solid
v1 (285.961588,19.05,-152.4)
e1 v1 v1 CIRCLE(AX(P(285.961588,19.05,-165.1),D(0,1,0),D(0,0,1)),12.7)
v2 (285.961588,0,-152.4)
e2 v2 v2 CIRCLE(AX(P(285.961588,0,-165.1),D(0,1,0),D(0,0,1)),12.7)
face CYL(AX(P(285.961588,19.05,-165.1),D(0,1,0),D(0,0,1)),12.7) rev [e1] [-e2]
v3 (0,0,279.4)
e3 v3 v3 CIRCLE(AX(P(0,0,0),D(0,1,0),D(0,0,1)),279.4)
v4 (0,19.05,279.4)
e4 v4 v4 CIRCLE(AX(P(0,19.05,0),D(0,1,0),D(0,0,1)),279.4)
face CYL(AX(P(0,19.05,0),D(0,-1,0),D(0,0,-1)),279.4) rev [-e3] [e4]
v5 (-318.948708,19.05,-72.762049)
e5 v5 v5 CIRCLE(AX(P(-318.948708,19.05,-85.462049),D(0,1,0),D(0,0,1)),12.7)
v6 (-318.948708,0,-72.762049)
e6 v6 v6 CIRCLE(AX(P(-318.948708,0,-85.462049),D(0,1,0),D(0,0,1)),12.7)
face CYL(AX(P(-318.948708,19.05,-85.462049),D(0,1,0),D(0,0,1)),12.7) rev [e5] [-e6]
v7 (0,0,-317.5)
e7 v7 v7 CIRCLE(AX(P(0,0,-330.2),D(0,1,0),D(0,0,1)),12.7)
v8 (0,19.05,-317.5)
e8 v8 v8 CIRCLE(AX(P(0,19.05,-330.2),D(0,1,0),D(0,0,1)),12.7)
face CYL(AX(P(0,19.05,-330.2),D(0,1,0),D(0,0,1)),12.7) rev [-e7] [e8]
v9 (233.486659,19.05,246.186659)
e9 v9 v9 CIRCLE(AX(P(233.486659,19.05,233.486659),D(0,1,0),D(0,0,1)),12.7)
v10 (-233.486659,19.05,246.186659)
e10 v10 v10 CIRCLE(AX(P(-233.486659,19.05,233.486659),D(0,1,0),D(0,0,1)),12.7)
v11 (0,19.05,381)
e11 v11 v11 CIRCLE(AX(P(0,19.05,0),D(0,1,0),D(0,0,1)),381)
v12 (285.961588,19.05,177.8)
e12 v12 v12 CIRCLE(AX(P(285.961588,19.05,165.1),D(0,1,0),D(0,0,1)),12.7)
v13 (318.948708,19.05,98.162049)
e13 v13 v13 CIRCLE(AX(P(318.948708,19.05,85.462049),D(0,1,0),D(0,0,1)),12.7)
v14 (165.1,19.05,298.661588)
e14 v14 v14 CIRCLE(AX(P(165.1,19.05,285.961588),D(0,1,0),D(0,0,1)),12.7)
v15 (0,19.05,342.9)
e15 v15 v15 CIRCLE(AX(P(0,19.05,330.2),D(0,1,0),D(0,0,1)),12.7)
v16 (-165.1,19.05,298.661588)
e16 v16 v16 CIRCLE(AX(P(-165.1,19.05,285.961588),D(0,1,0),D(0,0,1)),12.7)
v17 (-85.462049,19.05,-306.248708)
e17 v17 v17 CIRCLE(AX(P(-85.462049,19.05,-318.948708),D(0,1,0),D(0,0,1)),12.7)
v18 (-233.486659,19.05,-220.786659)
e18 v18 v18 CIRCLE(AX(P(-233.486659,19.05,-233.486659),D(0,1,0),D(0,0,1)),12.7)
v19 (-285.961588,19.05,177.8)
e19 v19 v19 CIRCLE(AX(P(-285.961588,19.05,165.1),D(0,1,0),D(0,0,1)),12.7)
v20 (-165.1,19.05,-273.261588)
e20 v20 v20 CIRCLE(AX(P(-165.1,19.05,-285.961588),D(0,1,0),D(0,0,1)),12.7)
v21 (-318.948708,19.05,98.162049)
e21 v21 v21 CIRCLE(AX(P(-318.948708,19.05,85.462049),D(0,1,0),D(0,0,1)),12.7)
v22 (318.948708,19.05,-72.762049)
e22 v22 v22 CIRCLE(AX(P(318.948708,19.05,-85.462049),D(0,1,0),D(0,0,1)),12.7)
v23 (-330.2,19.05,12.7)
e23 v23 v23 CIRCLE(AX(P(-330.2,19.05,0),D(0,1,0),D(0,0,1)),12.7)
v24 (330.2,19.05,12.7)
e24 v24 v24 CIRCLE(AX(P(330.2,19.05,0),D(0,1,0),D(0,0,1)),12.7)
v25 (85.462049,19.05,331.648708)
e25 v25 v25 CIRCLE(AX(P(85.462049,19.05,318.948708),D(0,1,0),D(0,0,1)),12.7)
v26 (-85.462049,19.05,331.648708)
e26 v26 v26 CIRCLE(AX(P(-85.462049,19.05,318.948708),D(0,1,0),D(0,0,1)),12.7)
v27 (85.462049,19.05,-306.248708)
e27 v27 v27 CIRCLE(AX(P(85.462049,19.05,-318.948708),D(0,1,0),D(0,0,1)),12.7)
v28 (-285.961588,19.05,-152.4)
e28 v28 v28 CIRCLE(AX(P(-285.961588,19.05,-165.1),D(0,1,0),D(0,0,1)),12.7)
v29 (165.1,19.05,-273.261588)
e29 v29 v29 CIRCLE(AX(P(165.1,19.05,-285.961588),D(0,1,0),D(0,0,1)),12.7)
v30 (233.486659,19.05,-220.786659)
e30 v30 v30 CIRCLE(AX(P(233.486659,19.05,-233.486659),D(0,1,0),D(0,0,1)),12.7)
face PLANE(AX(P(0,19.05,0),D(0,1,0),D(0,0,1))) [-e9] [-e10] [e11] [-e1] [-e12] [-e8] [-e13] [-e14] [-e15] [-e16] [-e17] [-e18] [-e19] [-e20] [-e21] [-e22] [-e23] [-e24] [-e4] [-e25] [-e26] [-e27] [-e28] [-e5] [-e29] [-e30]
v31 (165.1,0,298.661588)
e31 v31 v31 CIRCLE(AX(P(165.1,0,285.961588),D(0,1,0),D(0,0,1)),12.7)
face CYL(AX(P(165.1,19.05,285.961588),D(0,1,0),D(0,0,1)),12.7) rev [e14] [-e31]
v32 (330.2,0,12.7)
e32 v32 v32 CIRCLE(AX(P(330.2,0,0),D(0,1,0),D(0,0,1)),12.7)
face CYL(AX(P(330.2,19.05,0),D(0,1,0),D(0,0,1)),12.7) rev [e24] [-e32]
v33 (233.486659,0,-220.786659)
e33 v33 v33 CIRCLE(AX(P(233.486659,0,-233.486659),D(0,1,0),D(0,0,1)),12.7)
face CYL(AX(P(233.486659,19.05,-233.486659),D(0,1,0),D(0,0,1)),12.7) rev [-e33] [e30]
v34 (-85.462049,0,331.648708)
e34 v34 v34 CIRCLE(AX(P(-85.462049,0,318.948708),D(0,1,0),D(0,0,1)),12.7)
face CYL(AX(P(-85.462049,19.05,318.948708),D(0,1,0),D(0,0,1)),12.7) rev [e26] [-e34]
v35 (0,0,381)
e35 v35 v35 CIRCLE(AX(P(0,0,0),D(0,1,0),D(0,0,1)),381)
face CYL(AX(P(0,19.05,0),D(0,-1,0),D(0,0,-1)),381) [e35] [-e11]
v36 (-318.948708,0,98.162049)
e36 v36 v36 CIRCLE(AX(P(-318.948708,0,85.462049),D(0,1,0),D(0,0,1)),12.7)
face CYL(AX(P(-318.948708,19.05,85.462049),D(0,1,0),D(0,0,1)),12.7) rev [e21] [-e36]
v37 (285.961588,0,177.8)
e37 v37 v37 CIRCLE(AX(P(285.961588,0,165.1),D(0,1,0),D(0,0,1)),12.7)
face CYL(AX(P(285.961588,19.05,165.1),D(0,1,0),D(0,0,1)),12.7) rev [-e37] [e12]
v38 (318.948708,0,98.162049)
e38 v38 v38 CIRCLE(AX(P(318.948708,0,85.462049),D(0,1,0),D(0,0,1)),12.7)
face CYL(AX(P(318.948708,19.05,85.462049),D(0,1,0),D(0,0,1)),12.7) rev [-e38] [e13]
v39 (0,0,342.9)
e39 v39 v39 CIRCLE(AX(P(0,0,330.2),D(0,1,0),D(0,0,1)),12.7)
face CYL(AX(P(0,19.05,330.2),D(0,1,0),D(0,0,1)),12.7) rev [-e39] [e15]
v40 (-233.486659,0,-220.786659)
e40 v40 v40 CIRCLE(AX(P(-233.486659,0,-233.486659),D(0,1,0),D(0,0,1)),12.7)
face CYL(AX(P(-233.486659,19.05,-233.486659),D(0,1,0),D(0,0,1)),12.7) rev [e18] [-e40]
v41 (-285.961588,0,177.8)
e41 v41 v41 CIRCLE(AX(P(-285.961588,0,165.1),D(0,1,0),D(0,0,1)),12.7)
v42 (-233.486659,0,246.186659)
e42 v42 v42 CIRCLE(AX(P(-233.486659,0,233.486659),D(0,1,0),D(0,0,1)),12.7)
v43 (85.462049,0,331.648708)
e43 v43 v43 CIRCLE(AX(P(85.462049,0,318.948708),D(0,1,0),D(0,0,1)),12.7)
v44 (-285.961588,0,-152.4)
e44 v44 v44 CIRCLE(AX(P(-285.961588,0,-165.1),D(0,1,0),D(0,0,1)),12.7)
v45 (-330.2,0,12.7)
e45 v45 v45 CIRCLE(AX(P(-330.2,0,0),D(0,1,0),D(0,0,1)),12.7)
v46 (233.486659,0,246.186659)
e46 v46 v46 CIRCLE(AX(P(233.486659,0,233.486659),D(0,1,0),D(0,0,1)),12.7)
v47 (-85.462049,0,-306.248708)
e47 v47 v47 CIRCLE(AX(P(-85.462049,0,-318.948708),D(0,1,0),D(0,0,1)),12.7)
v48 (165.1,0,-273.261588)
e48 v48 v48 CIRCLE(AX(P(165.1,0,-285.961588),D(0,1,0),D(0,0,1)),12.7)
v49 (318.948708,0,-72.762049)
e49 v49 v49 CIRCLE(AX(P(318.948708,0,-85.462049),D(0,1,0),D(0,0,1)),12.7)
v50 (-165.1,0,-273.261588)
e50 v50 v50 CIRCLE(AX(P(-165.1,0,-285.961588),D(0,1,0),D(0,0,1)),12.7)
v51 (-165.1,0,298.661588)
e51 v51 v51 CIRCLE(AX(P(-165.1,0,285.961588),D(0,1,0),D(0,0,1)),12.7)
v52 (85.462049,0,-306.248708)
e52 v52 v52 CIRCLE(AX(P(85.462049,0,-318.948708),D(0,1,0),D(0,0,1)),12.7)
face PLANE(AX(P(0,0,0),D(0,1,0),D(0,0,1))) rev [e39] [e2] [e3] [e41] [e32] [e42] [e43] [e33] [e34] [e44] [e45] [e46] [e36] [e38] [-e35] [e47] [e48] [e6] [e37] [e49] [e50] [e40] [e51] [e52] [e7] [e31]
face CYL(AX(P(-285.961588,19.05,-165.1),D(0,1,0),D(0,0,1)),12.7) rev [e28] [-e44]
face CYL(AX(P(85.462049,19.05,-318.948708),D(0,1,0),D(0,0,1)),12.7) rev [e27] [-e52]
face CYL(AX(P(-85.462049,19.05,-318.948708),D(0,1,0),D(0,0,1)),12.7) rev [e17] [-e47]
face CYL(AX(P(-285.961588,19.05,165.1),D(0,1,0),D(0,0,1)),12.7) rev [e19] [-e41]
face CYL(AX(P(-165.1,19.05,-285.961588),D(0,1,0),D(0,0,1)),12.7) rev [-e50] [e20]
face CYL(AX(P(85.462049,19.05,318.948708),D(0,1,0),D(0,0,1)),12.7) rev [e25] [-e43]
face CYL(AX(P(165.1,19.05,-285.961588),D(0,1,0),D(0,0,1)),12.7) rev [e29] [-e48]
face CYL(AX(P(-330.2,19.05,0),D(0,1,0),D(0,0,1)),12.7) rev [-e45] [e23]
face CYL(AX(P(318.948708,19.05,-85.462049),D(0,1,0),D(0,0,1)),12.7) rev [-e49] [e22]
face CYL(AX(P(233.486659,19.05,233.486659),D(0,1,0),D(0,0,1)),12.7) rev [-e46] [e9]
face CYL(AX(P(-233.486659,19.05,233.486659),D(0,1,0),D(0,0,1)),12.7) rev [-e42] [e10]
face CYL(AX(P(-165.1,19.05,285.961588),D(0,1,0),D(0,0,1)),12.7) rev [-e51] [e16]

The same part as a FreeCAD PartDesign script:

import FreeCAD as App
import Part
import Sketcher
from FreeCAD import Vector
Q = App.Units.Quantity


def add_polygon(sketch, points):
    """Adds a closed chain of lines whose ends are joined by coincident constraints."""
    first, n = sketch.GeometryCount, len(points)
    for a, b in zip(points, points[1:] + points[:1]):
        sketch.addGeometry(Part.LineSegment(App.Vector(*a, 0), App.Vector(*b, 0)), False)
    for i in range(n):
        sketch.addConstraint(Sketcher.Constraint("Coincident", first + i, 2, first + (i + 1) % n, 1))

doc = App.newDocument("Part")
body = doc.addObject("PartDesign::Body", "Body")

# Sketch on XZ plane
sketch1 = body.newObject("Sketcher::SketchObject", "Sketch")
sketch1.AttachmentSupport = (doc.getObject("XZ_Plane"), [""])
sketch1.MapMode = "FlatFace"
sketch1.addGeometry([
    Part.Circle(Vector(0, 0, 0), Vector(0, 0, 1), 381),
    Part.Circle(Vector(0, 0, 0), Vector(0, 0, 1), 279.4),
], False)
sketch1.addConstraint([
    Sketcher.Constraint("Coincident", 0, 3, -1, 1),
    Sketcher.Constraint("Coincident", 1, 3, -1, 1),
    Sketcher.Constraint("Diameter", 0, Q("30 in")),
    Sketcher.Constraint("Diameter", 1, Q("22 in")),
])
pad1 = body.newObject("PartDesign::Pad", "Pad")
pad1.Profile = sketch1
pad1.Length = Q("0.75 in")
pad1.Reversed = True

# Sketch on YZ plane
sketch2 = body.newObject("Sketcher::SketchObject", "Sketch001")
sketch2.AttachmentSupport = (doc.getObject("YZ_Plane"), [""])
sketch2.MapMode = "FlatFace"
add_polygon(sketch2, [(-20.58093, -330.2), (19.05, -330.2), (19.05, -317.5), (-12.95, -317.5)])  # lines 0-3
sketch2.addGeometry(Part.LineSegment(Vector(19.05, -330.2, 0), Vector(-20.58093, -330.2, 0)), True)  # axis
sketch2.addConstraint([
    Sketcher.Constraint("Horizontal", 0),
    Sketcher.Constraint("Vertical", 1),
    Sketcher.Constraint("Horizontal", 2),
    Sketcher.Constraint("Horizontal", 4),
    Sketcher.Constraint("Coincident", 4, 1, 0, 2),
    Sketcher.Constraint("Equal", 0, 4),
    Sketcher.Constraint("DistanceY", 1, 1, 1, 2, Q("0.5 in")),
    Sketcher.Constraint("DistanceY", 0, 2, -1, 1, Q("13 in")),
    Sketcher.Constraint("Angle", 3, Q("-121 deg")),
    Sketcher.Constraint("DistanceX", -1, 1, 0, 2, Q("0.75 in")),
    Sketcher.Constraint("DistanceX", 2, 2, 2, 1, Q("32 mm")),
])
groove = body.newObject("PartDesign::Groove", "Groove")
groove.Profile = sketch2
groove.ReferenceAxis = (sketch2, ["Axis0"])
groove.Angle = 360
doc.recompute()

polarpattern = body.newObject("PartDesign::PolarPattern", "PolarPattern")
polarpattern.Originals = [groove]
polarpattern.Axis = (doc.getObject("Y_Axis"), [""])
polarpattern.Angle = 360
polarpattern.Occurrences = 24
body.Tip = polarpattern

doc.recompute()
